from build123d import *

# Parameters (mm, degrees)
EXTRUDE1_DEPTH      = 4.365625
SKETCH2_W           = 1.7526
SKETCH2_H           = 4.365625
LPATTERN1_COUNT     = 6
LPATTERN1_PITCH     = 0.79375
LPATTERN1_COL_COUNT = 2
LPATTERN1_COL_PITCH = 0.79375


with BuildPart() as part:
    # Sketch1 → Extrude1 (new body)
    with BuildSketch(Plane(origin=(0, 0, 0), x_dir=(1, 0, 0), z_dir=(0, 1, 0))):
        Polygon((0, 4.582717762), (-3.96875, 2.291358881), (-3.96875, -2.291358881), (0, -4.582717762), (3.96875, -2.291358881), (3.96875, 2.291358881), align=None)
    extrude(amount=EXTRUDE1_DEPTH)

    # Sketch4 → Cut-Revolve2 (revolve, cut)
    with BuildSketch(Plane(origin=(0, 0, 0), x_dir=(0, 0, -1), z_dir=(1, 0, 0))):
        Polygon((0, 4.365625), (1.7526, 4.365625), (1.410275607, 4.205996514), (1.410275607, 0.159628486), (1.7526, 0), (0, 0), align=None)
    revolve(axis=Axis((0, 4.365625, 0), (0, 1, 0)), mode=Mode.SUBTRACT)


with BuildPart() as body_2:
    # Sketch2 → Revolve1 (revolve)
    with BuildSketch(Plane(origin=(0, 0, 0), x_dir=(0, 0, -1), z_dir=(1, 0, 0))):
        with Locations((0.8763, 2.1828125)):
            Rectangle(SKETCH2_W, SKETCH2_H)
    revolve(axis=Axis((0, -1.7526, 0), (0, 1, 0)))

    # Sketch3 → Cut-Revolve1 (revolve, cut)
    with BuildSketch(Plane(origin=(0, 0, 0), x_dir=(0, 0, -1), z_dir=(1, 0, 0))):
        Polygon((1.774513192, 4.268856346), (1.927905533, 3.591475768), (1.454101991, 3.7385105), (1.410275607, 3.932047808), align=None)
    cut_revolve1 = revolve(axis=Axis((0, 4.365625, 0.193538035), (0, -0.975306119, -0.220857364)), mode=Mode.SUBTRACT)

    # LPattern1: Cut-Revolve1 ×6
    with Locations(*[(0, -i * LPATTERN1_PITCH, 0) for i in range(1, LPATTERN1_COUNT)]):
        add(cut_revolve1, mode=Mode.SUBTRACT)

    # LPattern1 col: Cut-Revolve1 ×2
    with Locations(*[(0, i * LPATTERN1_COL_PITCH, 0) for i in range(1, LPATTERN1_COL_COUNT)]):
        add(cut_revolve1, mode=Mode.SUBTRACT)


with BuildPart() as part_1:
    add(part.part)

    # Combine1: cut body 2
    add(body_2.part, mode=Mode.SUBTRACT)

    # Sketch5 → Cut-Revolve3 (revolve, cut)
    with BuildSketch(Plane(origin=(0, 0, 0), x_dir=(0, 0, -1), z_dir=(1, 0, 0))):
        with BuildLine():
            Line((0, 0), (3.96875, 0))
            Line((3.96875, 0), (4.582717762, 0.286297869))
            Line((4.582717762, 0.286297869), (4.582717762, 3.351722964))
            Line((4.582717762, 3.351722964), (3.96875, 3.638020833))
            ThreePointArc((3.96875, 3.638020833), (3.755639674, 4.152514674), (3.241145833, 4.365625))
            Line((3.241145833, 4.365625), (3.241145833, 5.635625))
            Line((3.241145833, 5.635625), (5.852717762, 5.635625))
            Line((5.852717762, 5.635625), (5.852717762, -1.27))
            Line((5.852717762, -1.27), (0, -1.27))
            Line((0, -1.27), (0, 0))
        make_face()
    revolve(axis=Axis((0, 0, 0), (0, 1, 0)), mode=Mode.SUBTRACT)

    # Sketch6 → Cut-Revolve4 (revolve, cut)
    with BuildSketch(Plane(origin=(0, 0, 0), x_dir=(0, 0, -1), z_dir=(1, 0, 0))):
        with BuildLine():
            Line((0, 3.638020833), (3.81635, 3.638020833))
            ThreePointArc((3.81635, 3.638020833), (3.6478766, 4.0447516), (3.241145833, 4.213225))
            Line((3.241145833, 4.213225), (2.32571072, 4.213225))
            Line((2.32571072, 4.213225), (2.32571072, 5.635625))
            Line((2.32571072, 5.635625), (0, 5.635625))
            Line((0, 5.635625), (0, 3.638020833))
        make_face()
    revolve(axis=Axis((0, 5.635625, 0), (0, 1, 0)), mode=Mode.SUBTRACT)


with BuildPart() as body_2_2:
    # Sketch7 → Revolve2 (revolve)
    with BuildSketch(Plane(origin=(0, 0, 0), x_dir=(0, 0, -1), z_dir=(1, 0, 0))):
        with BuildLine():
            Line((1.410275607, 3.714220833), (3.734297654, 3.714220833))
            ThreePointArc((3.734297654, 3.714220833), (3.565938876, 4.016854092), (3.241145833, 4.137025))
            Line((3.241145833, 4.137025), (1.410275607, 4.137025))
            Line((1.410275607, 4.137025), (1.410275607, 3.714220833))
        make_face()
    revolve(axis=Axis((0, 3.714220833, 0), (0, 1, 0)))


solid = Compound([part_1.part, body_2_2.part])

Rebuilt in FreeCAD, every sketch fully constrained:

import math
import FreeCAD as App
import Part
import Sketcher

V = App.Vector
Q = App.Units.Quantity

doc = App.newDocument("Part")
body = doc.addObject("PartDesign::Body", "Body")

# Sketch on XZ plane
sketch1 = doc.addObject("Sketcher::SketchObject", "Sketch")
body.addObject(sketch1)
sketch1.AttachmentSupport = (doc.XZ_Plane, [""])
sketch1.MapMode = "FlatFace"
sketch1.addGeometry([
    Part.LineSegment(V(0, -4.582718, 0), V(-3.96875, -2.291359, 0)),  # 0
    Part.LineSegment(V(-3.96875, -2.291359, 0), V(-3.96875, 2.291359, 0)),  # 1
    Part.LineSegment(V(-3.96875, 2.291359, 0), V(0, 4.582718, 0)),  # 2
    Part.LineSegment(V(0, 4.582718, 0), V(3.96875, 2.291359, 0)),  # 3
    Part.LineSegment(V(3.96875, 2.291359, 0), V(3.96875, -2.291359, 0)),  # 4
    Part.LineSegment(V(3.96875, -2.291359, 0), V(0, -4.582718, 0)),  # 5
], False)
sketch1.addConstraint([
    Sketcher.Constraint("Coincident", 0, 2, 1, 1),
    Sketcher.Constraint("Coincident", 1, 2, 2, 1),
    Sketcher.Constraint("Coincident", 2, 2, 3, 1),
    Sketcher.Constraint("Coincident", 3, 2, 4, 1),
    Sketcher.Constraint("Coincident", 4, 2, 5, 1),
    Sketcher.Constraint("Coincident", 5, 2, 0, 1),
    Sketcher.Constraint("Vertical", 1),
    Sketcher.Constraint("Vertical", 4),
    Sketcher.Constraint("Symmetric", 0, 2, 3, 2, -1, 1),
    Sketcher.Constraint("Symmetric", 2, 2, 5, 2, -1, 1),
    Sketcher.Constraint("PointOnObject", 2, 2, -2),
    Sketcher.Constraint("Parallel", 2, 5),
    Sketcher.Constraint("Horizontal", 1, 2, 3, 2),
    Sketcher.Constraint("Angle", 0, Q("150 deg")),
    Sketcher.Constraint("DistanceX", 0, 2, -1, 1, Q("0.15625 in")),
    Sketcher.Constraint("DistanceY", 1, 1, 1, 2, 4.582718),
])
pad1 = doc.addObject("PartDesign::Pad", "Pad")
body.addObject(pad1)
pad1.Profile = sketch1
pad1.Length = Q("0.171875 in")
pad1.Reversed = True

# Sketch on YZ plane
sketch2 = doc.addObject("Sketcher::SketchObject", "Sketch001")
body.addObject(sketch2)
sketch2.AttachmentSupport = (doc.YZ_Plane, [""])
sketch2.MapMode = "FlatFace"
sketch2.addGeometry([
    Part.LineSegment(V(4.365625, -1.7526, 0), V(4.365625, 0, 0)),  # 0
    Part.LineSegment(V(4.365625, 0, 0), V(0, 0, 0)),  # 1
    Part.LineSegment(V(0, 0, 0), V(0, -1.7526, 0)),  # 2
    Part.LineSegment(V(0, -1.7526, 0), V(0.159628, -1.410276, 0)),  # 3
    Part.LineSegment(V(0.159628, -1.410276, 0), V(4.205997, -1.410276, 0)),  # 4
    Part.LineSegment(V(4.205997, -1.410276, 0), V(4.365625, -1.7526, 0)),  # 5
], False)
sketch2.addConstraint([
    Sketcher.Constraint("Coincident", 0, 2, 1, 1),
    Sketcher.Constraint("Coincident", 1, 2, 2, 1),
    Sketcher.Constraint("Coincident", 2, 2, 3, 1),
    Sketcher.Constraint("Coincident", 3, 2, 4, 1),
    Sketcher.Constraint("Coincident", 4, 2, 5, 1),
    Sketcher.Constraint("Coincident", 5, 2, 0, 1),
    Sketcher.Constraint("Vertical", 0),
    Sketcher.Constraint("Horizontal", 1),
    Sketcher.Constraint("Vertical", 2),
    Sketcher.Constraint("Horizontal", 4),
    Sketcher.Constraint("Coincident", 1, 2, -1, 1),
    Sketcher.Constraint("Horizontal", 2, 2, 5, 2),
    Sketcher.Constraint("Equal", 3, 5),
    Sketcher.Constraint("Angle", 3, Q("65 deg")),
    Sketcher.Constraint("DistanceX", 1, 2, 1, 1, Q("0.171875 in")),
    Sketcher.Constraint("DistanceY", 0, 1, 0, 2, Q("0.069 in")),
    Sketcher.Constraint("DistanceX", 4, 1, 4, 2, 4.046368),
])
groove = doc.addObject("PartDesign::Groove", "Groove")
body.addObject(groove)
groove.Profile = sketch2
groove.ReferenceAxis = (sketch2, ["H_Axis"])
groove.Angle = 360
body2 = doc.addObject("PartDesign::Body", "Body001")

# Sketch on YZ plane
sketch3 = doc.addObject("Sketcher::SketchObject", "Sketch002")
body2.addObject(sketch3)
sketch3.AttachmentSupport = (doc.getObject("YZ_Plane001"), [""])
sketch3.MapMode = "FlatFace"
sketch3.addGeometry([
    Part.LineSegment(V(4.365625, 0, 0), V(0, 0, 0)),
    Part.LineSegment(V(0, 0, 0), V(0, -1.7526, 0)),
    Part.LineSegment(V(0, -1.7526, 0), V(4.365625, -1.7526, 0)),
    Part.LineSegment(V(4.365625, -1.7526, 0), V(4.365625, 0, 0)),
], False)
sketch3.addConstraint([
    Sketcher.Constraint("Coincident", 0, 2, 1, 1),
    Sketcher.Constraint("Coincident", 1, 2, 2, 1),
    Sketcher.Constraint("Coincident", 2, 2, 3, 1),
    Sketcher.Constraint("Coincident", 3, 2, 0, 1),
    Sketcher.Constraint("Horizontal", 0),
    Sketcher.Constraint("Vertical", 1),
    Sketcher.Constraint("Horizontal", 2),
    Sketcher.Constraint("Vertical", 3),
    Sketcher.Constraint("Coincident", 0, 2, -1, 1),
    Sketcher.Constraint("DistanceX", 0, 2, 0, 1, Q("0.171875 in")),
    Sketcher.Constraint("DistanceY", 1, 2, 1, 1, Q("0.069 in")),
])
revolution = doc.addObject("PartDesign::Revolution", "Revolution")
body2.addObject(revolution)
revolution.Profile = sketch3
revolution.ReferenceAxis = (sketch3, ["H_Axis"])
revolution.Angle = 360

# Sketch on YZ plane
sketch4 = doc.addObject("Sketcher::SketchObject", "Sketch003")
body2.addObject(sketch4)
sketch4.AttachmentSupport = (doc.getObject("YZ_Plane001"), [""])
sketch4.MapMode = "FlatFace"
sketch4.addGeometry([
    Part.LineSegment(V(3.591476, -1.927906, 0), V(4.268856, -1.774513, 0)),
    Part.LineSegment(V(4.268856, -1.774513, 0), V(3.932048, -1.410276, 0)),
    Part.LineSegment(V(3.932048, -1.410276, 0), V(3.73851, -1.454102, 0)),
    Part.LineSegment(V(3.73851, -1.454102, 0), V(3.591476, -1.927906, 0)),
], False)
sketch4.addGeometry(Part.LineSegment(V(3.849651, 0.076696, 0), V(3.172271, -0.076696, 0)), True)  # axis
sketch4.addConstraint([
    Sketcher.Constraint("Coincident", 0, 2, 1, 1),
    Sketcher.Constraint("Coincident", 1, 2, 2, 1),
    Sketcher.Constraint("Coincident", 2, 2, 3, 1),
    Sketcher.Constraint("Coincident", 3, 2, 0, 1),
    Sketcher.Constraint("Parallel", 0, 2),
    Sketcher.Constraint("Parallel", 2, 4),
    Sketcher.Constraint("Equal", 1, 3),
    Sketcher.Constraint("Equal", 0, 4),
    Sketcher.Constraint("DistanceY", 2, 2, -1, 1, 1.454102),
    Sketcher.Constraint("DistanceY", 2, 2, 4, 1, 1.530798),
    Sketcher.Constraint("DistanceY", 3, 2, 4, 1, 2.004602),
    Sketcher.Constraint("Distance", 0, 0.694531),
    Sketcher.Constraint("DistanceX", -1, 1, 2, 2, 3.73851),
    Sketcher.Constraint("DistanceX", -1, 1, 4, 1, 3.849651),
    Sketcher.Constraint("DistanceX", -1, 1, 4, 2, 3.172271),
    Sketcher.Constraint("DistanceX", 1, 2, 0, 2, 0.336809),
])
groove2 = doc.addObject("PartDesign::Groove", "Groove001")
body2.addObject(groove2)
groove2.Profile = sketch4
groove2.ReferenceAxis = (sketch4, ["Axis0"])
groove2.Angle = 360
doc.recompute()

linearpattern = doc.addObject("PartDesign::LinearPattern", "LinearPattern")
body2.addObject(linearpattern)
linearpattern.Originals = [groove2]
linearpattern.Direction = (doc.getObject("Y_Axis001"), [""])
linearpattern.Mode = "offset"
linearpattern.Offset = Q("0.03125 in")
linearpattern.Occurrences = 6
linearpattern.Reversed = True
body2.Tip = linearpattern
doc.recompute()

linearpattern2 = doc.addObject("PartDesign::LinearPattern", "LinearPattern001")
body2.addObject(linearpattern2)
linearpattern2.Originals = [groove2]
linearpattern2.Direction = (doc.getObject("Y_Axis001"), [""])
linearpattern2.Mode = "offset"
linearpattern2.Offset = Q("0.03125 in")
linearpattern2.Occurrences = 2
body2.Tip = linearpattern2
doc.recompute()

boolean = doc.addObject("PartDesign::Boolean", "Boolean")
body.addObject(boolean)
boolean.Type = "Cut"
boolean.addObjects([body2])

# Sketch on YZ plane
sketch5 = doc.addObject("Sketcher::SketchObject", "Sketch004")
body.addObject(sketch5)
sketch5.AttachmentSupport = (doc.YZ_Plane, [""])
sketch5.MapMode = "FlatFace"
sketch5.addGeometry([
    Part.LineSegment(V(0, -3.96875, 0), V(0, 0, 0)),  # 0
    Part.LineSegment(V(0, 0, 0), V(-1.27, 0, 0)),  # 1
    Part.LineSegment(V(-1.27, 0, 0), V(-1.27, -5.852718, 0)),  # 2
    Part.LineSegment(V(-1.27, -5.852718, 0), V(5.635625, -5.852718, 0)),  # 3
    Part.LineSegment(V(5.635625, -5.852718, 0), V(5.635625, -3.241146, 0)),  # 4
    Part.LineSegment(V(5.635625, -3.241146, 0), V(4.365625, -3.241146, 0)),  # 5
    Part.ArcOfCircle(Part.Circle(V(3.638021, -3.241146, 0), V(0, 0, 1), 0.727604), math.radians(-90), math.radians(0)),  # 6
    Part.LineSegment(V(3.638021, -3.96875, 0), V(3.351723, -4.582718, 0)),  # 7
    Part.LineSegment(V(3.351723, -4.582718, 0), V(0.286298, -4.582718, 0)),  # 8
    Part.LineSegment(V(0.286298, -4.582718, 0), V(0, -3.96875, 0)),  # 9
], False)
sketch5.addConstraint([
    Sketcher.Constraint("Coincident", 0, 2, 1, 1),
    Sketcher.Constraint("Coincident", 1, 2, 2, 1),
    Sketcher.Constraint("Coincident", 2, 2, 3, 1),
    Sketcher.Constraint("Coincident", 3, 2, 4, 1),
    Sketcher.Constraint("Coincident", 4, 2, 5, 1),
    Sketcher.Constraint("Coincident", 5, 2, 6, 2),
    Sketcher.Constraint("Coincident", 6, 1, 7, 1),
    Sketcher.Constraint("Coincident", 7, 2, 8, 1),
    Sketcher.Constraint("Coincident", 8, 2, 9, 1),
    Sketcher.Constraint("Coincident", 9, 2, 0, 1),
    Sketcher.Constraint("Vertical", 0),
    Sketcher.Constraint("Horizontal", 1),
    Sketcher.Constraint("Vertical", 2),
    Sketcher.Constraint("Horizontal", 3),
    Sketcher.Constraint("Vertical", 4),
    Sketcher.Constraint("Horizontal", 5),
    Sketcher.Constraint("Horizontal", 8),
    Sketcher.Constraint("Coincident", 0, 2, -1, 1),
    Sketcher.Constraint("Horizontal", 6, 3, 4, 2),
    Sketcher.Constraint("Horizontal", 6, 1, 9, 2),
    Sketcher.Constraint("Equal", 1, 5),
    Sketcher.Constraint("Equal", 7, 9),
    Sketcher.Constraint("Angle", 7, Q("-115 deg")),
    Sketcher.Constraint("DistanceX", 1, 2, 1, 1, Q("0.05 in")),
    Sketcher.Constraint("DistanceY", 0, 1, 0, 2, Q("0.15625 in")),
    Sketcher.Constraint("DistanceY", 3, 2, 7, 2, Q("0.05 in")),
    Sketcher.Constraint("DistanceX", -1, 1, 5, 2, Q("0.171875 in")),
    Sketcher.Constraint("Radius", 6, 0.727604),
    Sketcher.Constraint("DistanceY", 4, 1, 4, 2, 2.611572),
    Sketcher.Constraint("DistanceX", 8, 2, 8, 1, 3.065425),
])
groove3 = doc.addObject("PartDesign::Groove", "Groove002")
body.addObject(groove3)
groove3.Profile = sketch5
groove3.ReferenceAxis = (sketch5, ["H_Axis"])
groove3.Angle = 360

# Sketch on YZ plane
sketch6 = doc.addObject("Sketcher::SketchObject", "Sketch005")
body.addObject(sketch6)
sketch6.AttachmentSupport = (doc.YZ_Plane, [""])
sketch6.MapMode = "FlatFace"
sketch6.addGeometry([
    Part.LineSegment(V(3.638021, 0, 0), V(3.638021, -3.81635, 0)),  # 0
    Part.ArcOfCircle(Part.Circle(V(3.638021, -3.241146, 0), V(0, 0, 1), 0.575204), math.radians(-90), math.radians(0)),  # 1
    Part.LineSegment(V(4.213225, -3.241146, 0), V(4.213225, -2.325711, 0)),  # 2
    Part.LineSegment(V(4.213225, -2.325711, 0), V(5.635625, -2.325711, 0)),  # 3
    Part.LineSegment(V(5.635625, -2.325711, 0), V(5.635625, 0, 0)),  # 4
    Part.LineSegment(V(5.635625, 0, 0), V(3.638021, 0, 0)),  # 5
], False)
sketch6.addConstraint([
    Sketcher.Constraint("Coincident", 0, 2, 1, 1),
    Sketcher.Constraint("Tangent", 1, 2, 2, 1),
    Sketcher.Constraint("Coincident", 2, 2, 3, 1),
    Sketcher.Constraint("Coincident", 3, 2, 4, 1),
    Sketcher.Constraint("Coincident", 4, 2, 5, 1),
    Sketcher.Constraint("Coincident", 5, 2, 0, 1),
    Sketcher.Constraint("Vertical", 0),
    Sketcher.Constraint("Vertical", 2),
    Sketcher.Constraint("Horizontal", 3),
    Sketcher.Constraint("Vertical", 4),
    Sketcher.Constraint("Horizontal", 5),
    Sketcher.Constraint("PointOnObject", 4, 2, -1),
    Sketcher.Constraint("Vertical", 1, 3, 0, 2),
    Sketcher.Constraint("DistanceX", 3, 1, 3, 2, Q("0.056 in")),
    Sketcher.Constraint("Radius", 1, 0.575204),
    Sketcher.Constraint("DistanceY", 0, 2, 0, 1, 3.81635),
    Sketcher.Constraint("DistanceY", 4, 1, 4, 2, 2.325711),
    Sketcher.Constraint("DistanceX", -1, 1, 1, 3, 3.638021),
])
groove4 = doc.addObject("PartDesign::Groove", "Groove003")
body.addObject(groove4)
groove4.Profile = sketch6
groove4.ReferenceAxis = (sketch6, ["H_Axis"])
groove4.Angle = 360
body3 = doc.addObject("PartDesign::Body", "Body002")

# Sketch on YZ plane
sketch7 = doc.addObject("Sketcher::SketchObject", "Sketch006")
body3.addObject(sketch7)
sketch7.AttachmentSupport = (doc.getObject("YZ_Plane002"), [""])
sketch7.MapMode = "FlatFace"
sketch7.addGeometry([
    Part.LineSegment(V(3.714221, -1.410276, 0), V(3.714221, -3.734298, 0)),
    Part.ArcOfCircle(Part.Circle(V(3.638021, -3.241146, 0), V(0, 0, 1), 0.499004), math.radians(-81.216332), math.radians(0)),
    Part.LineSegment(V(4.137025, -3.241146, 0), V(4.137025, -1.410276, 0)),
    Part.LineSegment(V(4.137025, -1.410276, 0), V(3.714221, -1.410276, 0)),
], False)
sketch7.addConstraint([
    Sketcher.Constraint("Coincident", 0, 2, 1, 1),
    Sketcher.Constraint("Tangent", 1, 2, 2, 1),
    Sketcher.Constraint("Coincident", 2, 2, 3, 1),
    Sketcher.Constraint("Coincident", 3, 2, 0, 1),
    Sketcher.Constraint("Vertical", 0),
    Sketcher.Constraint("Vertical", 2),
    Sketcher.Constraint("Horizontal", 3),
    Sketcher.Constraint("DistanceX", 1, 3, 0, 2, Q("0.003 in")),
    Sketcher.Constraint("Radius", 1, 0.499004),
    Sketcher.Constraint("DistanceY", 2, 1, 2, 2, 1.83087),
    Sketcher.Constraint("DistanceX", -1, 1, 1, 3, 3.638021),
    Sketcher.Constraint("DistanceY", 1, 3, -1, 1, 3.241146),
])
revolution2 = doc.addObject("PartDesign::Revolution", "Revolution001")
body3.addObject(revolution2)
revolution2.Profile = sketch7
revolution2.ReferenceAxis = (sketch7, ["H_Axis"])
revolution2.Angle = 360

doc.recompute()
